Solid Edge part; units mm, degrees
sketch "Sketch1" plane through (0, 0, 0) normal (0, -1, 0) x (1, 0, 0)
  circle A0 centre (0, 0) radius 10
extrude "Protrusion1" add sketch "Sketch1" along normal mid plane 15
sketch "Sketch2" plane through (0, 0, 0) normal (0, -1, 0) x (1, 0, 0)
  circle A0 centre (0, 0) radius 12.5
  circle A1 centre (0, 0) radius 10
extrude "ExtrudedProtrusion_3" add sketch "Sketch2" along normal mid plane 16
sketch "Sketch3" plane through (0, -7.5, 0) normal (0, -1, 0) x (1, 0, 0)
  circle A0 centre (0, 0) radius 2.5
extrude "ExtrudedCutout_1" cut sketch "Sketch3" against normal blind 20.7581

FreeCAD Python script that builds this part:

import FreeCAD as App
import Part
import Sketcher

doc = App.newDocument("Part")
params = doc.addObject("Spreadsheet::Sheet", "Params")
for row, (alias, value) in enumerate([
    ("sketch1_diameter", "20 mm"),
    ("pad1_length", "15 mm"),
    ("sketch2_diameter", "25 mm"),
    ("sketch2_diameter2", "20 mm"),
    ("pad2_length", "16 mm"),
    ("sketch3_diameter", "5 mm"),
    ("pocket1_length", "20.7581 mm"),
], start=1):
    params.set(f"A{row}", alias)
    params.set(f"B{row}", "=" + value)
    params.setAlias(f"B{row}", alias)

body = doc.addObject("PartDesign::Body", "Body")

sketch1 = doc.addObject("Sketcher::SketchObject", "Sketch")
body.addObject(sketch1)
sketch1.AttachmentSupport = (doc.XZ_Plane, [""])
sketch1.MapMode = "FlatFace"
sketch1.addGeometry(Part.Circle(App.Vector(0, 0, 0), App.Vector(0, 0, 1), 10), False)
sketch1.addConstraint(Sketcher.Constraint("Coincident", 0, 3, -1, 1))
sketch1.addConstraint(Sketcher.Constraint("Diameter", 0, 20.0))
sketch1.setExpression("Constraints[1]", "Params.sketch1_diameter")
pad1 = doc.addObject("PartDesign::Pad", "Pad")
body.addObject(pad1)
pad1.Profile = sketch1
pad1.setExpression("Length", "Params.pad1_length")
pad1.Midplane = True

sketch2 = doc.addObject("Sketcher::SketchObject", "Sketch001")
body.addObject(sketch2)
sketch2.AttachmentSupport = (doc.XZ_Plane, [""])
sketch2.MapMode = "FlatFace"
sketch2.addGeometry(Part.Circle(App.Vector(0, 0, 0), App.Vector(0, 0, 1), 12.5), False)
sketch2.addGeometry(Part.Circle(App.Vector(0, 0, 0), App.Vector(0, 0, 1), 10), False)
sketch2.addConstraint(Sketcher.Constraint("Coincident", 0, 3, -1, 1))
sketch2.addConstraint(Sketcher.Constraint("Coincident", 1, 3, -1, 1))
sketch2.addConstraint(Sketcher.Constraint("Diameter", 0, 25.0))
sketch2.addConstraint(Sketcher.Constraint("Diameter", 1, 20.0))
sketch2.setExpression("Constraints[2]", "Params.sketch2_diameter")
sketch2.setExpression("Constraints[3]", "Params.sketch2_diameter2")
pad2 = doc.addObject("PartDesign::Pad", "Pad001")
body.addObject(pad2)
pad2.Profile = sketch2
pad2.setExpression("Length", "Params.pad2_length")
pad2.Midplane = True

sketch3 = doc.addObject("Sketcher::SketchObject", "Sketch002")
body.addObject(sketch3)
sketch3.AttachmentSupport = (doc.XZ_Plane, [""])
sketch3.MapMode = "FlatFace"
sketch3.AttachmentOffset = App.Placement(App.Vector(0, 0, 7.5), App.Rotation())
sketch3.addGeometry(Part.Circle(App.Vector(0, 0, 0), App.Vector(0, 0, 1), 2.5), False)
sketch3.addConstraint(Sketcher.Constraint("Coincident", 0, 3, -1, 1))
sketch3.addConstraint(Sketcher.Constraint("Diameter", 0, 5.0))
sketch3.setExpression("Constraints[1]", "Params.sketch3_diameter")
pocket1 = doc.addObject("PartDesign::Pocket", "Pocket")
body.addObject(pocket1)
pocket1.Profile = sketch3
pocket1.setExpression("Length", "Params.pocket1_length")

doc.recompute()
